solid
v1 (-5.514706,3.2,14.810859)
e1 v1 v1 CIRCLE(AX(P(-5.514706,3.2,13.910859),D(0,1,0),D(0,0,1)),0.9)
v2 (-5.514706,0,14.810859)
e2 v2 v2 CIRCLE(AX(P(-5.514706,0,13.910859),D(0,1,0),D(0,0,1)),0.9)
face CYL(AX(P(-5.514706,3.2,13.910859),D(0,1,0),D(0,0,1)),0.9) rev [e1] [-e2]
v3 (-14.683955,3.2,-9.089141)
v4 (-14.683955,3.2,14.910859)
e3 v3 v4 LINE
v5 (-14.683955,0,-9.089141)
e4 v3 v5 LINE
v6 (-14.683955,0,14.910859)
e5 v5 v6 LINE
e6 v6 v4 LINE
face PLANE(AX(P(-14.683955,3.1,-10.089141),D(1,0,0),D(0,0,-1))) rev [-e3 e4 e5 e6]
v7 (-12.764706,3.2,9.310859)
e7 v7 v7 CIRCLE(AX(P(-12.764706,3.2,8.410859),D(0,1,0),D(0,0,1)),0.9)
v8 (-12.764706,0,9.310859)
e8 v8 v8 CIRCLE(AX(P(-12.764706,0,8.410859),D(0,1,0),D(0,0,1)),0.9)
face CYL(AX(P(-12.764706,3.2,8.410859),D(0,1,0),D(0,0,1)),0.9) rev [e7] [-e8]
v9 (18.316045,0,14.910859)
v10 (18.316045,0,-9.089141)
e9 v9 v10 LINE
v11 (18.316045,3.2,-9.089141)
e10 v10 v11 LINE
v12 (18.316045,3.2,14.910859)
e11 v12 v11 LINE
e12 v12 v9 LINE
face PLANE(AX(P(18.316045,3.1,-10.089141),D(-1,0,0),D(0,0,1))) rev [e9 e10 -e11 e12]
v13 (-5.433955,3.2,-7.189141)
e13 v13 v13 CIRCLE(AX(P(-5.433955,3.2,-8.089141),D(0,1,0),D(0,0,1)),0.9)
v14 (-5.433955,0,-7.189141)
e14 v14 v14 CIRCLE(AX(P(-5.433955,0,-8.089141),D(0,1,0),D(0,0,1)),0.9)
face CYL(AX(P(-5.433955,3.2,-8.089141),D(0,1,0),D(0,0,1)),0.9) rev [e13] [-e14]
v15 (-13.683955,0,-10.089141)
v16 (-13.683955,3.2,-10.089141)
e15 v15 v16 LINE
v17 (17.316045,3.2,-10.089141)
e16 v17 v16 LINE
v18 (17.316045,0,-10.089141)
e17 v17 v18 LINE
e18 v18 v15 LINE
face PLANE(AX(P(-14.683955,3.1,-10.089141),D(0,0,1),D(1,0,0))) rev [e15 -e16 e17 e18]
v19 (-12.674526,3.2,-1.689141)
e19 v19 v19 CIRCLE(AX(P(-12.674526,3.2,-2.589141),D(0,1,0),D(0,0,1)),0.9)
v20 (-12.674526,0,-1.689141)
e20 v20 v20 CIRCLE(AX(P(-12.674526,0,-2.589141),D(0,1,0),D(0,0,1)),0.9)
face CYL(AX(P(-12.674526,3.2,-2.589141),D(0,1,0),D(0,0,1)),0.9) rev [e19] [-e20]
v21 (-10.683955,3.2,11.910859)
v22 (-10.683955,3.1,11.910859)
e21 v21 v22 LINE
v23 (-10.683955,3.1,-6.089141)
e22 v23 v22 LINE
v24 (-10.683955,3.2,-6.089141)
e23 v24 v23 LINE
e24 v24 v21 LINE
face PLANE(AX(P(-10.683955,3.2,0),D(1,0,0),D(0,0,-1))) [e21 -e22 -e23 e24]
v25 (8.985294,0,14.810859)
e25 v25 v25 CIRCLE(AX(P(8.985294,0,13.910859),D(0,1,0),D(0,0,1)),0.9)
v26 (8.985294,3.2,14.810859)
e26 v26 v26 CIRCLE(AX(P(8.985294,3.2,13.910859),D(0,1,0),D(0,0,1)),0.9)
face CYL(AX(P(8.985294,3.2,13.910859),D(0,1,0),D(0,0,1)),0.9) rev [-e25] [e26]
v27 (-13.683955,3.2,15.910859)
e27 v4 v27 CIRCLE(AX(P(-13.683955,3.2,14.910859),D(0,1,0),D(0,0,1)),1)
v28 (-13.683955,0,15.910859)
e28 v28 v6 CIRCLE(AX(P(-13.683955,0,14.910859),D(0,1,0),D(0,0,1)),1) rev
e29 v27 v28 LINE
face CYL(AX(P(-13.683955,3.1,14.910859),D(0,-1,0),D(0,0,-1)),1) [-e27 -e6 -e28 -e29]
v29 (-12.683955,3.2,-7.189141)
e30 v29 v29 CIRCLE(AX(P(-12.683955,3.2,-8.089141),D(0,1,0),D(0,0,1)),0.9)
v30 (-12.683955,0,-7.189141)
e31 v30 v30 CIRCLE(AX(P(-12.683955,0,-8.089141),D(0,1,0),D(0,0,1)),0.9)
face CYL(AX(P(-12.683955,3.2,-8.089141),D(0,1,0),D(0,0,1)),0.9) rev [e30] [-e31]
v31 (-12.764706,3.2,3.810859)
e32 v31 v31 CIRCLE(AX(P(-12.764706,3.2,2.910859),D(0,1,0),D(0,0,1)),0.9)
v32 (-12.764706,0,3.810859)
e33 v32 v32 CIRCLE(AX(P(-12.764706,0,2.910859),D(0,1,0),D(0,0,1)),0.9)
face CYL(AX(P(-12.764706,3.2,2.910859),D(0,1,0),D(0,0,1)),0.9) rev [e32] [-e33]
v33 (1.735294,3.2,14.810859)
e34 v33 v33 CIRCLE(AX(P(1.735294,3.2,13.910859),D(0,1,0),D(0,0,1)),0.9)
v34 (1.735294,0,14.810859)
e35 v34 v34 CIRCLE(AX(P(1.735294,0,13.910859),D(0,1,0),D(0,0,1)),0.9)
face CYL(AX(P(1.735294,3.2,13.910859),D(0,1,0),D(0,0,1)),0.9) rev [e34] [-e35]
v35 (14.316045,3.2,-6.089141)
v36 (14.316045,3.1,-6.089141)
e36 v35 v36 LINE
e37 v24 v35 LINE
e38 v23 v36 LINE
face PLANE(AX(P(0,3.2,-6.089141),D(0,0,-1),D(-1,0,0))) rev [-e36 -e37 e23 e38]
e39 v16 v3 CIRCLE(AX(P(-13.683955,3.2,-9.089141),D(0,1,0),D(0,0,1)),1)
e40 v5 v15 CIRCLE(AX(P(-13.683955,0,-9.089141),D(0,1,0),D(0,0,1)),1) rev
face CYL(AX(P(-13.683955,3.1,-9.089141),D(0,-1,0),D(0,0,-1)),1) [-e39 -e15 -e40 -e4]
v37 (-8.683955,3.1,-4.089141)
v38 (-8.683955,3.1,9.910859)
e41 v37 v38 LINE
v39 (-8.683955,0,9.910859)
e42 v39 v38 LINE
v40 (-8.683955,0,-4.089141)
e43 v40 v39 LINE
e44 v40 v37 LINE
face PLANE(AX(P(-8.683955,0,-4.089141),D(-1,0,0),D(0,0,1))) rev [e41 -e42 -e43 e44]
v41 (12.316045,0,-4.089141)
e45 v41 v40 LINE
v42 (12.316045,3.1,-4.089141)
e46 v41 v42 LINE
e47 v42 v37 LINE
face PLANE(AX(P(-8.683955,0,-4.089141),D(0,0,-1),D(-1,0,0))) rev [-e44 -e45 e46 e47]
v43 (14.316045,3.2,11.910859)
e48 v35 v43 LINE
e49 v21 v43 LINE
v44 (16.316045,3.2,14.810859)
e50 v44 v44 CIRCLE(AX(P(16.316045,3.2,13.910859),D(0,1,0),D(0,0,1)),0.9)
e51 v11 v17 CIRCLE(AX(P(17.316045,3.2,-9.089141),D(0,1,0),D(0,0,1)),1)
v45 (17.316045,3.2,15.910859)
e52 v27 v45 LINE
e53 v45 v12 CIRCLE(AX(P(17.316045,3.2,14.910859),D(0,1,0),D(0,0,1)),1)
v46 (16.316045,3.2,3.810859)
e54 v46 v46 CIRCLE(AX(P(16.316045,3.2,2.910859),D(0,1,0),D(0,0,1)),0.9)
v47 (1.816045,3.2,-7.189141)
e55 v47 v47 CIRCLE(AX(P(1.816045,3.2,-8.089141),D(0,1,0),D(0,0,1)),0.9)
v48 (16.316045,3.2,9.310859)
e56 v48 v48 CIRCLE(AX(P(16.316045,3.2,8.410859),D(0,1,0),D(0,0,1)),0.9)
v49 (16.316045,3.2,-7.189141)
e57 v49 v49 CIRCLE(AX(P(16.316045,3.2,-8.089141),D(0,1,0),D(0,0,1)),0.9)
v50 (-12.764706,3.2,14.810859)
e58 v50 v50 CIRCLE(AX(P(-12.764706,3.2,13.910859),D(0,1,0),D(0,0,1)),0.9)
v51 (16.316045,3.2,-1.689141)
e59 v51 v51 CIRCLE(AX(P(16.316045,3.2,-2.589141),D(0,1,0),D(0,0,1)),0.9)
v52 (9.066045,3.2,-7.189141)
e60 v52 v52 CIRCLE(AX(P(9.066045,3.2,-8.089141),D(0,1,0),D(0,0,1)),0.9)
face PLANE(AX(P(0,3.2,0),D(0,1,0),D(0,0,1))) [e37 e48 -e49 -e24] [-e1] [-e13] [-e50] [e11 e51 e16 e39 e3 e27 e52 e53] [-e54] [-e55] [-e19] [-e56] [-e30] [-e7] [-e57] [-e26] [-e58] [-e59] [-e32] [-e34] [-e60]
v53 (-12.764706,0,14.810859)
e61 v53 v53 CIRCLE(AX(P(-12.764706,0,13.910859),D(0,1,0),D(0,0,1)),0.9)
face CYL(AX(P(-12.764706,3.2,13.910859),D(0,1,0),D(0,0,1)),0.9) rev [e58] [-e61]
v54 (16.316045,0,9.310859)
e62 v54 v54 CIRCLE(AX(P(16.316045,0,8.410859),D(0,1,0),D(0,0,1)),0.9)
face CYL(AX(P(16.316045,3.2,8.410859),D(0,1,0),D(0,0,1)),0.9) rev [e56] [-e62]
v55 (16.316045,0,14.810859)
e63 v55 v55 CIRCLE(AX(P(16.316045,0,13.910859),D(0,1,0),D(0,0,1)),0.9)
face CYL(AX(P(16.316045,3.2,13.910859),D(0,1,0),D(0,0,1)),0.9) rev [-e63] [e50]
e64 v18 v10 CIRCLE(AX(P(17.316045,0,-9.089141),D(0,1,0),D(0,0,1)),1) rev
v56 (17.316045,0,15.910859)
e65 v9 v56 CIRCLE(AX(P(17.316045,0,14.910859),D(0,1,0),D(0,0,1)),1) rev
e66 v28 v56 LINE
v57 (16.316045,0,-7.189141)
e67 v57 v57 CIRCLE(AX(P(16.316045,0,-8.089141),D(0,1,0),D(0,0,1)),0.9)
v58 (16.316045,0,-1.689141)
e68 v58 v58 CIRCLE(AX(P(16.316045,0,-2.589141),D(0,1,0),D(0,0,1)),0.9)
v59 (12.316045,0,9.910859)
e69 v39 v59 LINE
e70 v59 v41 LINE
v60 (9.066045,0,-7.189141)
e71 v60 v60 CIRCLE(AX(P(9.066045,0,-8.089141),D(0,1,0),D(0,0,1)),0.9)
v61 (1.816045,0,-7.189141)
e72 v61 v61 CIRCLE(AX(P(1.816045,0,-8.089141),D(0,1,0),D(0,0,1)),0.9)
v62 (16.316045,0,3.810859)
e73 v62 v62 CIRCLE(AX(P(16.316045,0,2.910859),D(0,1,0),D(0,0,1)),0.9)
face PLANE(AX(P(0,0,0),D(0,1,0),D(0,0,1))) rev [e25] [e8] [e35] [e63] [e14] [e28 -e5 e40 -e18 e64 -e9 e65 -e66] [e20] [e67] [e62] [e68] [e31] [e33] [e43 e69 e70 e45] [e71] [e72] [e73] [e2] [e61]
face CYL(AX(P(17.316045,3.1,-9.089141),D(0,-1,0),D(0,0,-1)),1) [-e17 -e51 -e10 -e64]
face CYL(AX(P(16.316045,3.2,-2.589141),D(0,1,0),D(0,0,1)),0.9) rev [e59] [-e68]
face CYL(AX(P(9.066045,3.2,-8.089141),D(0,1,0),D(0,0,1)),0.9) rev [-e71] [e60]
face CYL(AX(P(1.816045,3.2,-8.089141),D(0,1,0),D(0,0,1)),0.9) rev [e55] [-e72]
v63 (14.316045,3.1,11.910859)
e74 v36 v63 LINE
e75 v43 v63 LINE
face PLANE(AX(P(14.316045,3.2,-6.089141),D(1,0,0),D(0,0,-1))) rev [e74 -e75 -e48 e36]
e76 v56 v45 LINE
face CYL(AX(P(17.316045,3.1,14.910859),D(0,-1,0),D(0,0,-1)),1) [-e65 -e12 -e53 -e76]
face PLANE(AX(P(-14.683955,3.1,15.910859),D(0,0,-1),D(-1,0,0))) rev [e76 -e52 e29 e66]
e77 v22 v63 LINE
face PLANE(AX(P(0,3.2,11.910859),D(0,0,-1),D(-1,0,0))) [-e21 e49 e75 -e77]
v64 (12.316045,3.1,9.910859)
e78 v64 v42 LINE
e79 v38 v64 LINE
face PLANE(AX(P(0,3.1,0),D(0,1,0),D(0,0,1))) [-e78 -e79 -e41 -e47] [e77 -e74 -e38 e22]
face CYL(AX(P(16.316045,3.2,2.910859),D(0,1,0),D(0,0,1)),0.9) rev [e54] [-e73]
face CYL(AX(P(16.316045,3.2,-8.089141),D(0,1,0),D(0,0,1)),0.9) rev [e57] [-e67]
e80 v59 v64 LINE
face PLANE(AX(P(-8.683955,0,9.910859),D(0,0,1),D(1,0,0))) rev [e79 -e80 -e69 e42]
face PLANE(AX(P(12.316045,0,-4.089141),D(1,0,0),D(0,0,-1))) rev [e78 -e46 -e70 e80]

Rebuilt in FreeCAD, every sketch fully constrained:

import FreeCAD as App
import Part
import Sketcher
from FreeCAD import Vector


def edges_at(feature, points):
    """Names of the edges that pass closest to the given points."""
    edges = feature.Shape.Edges
    near = lambda p: min(range(len(edges)), key=lambda i: edges[i].distToShape(Part.Vertex(*p))[0])
    return sorted({f"Edge{near(p) + 1}" for p in points})


def add_polygon(sketch, points):
    """Adds a closed chain of lines whose ends are joined by coincident constraints."""
    first, n = sketch.GeometryCount, len(points)
    for a, b in zip(points, points[1:] + points[:1]):
        sketch.addGeometry(Part.LineSegment(App.Vector(*a, 0), App.Vector(*b, 0)), False)
    for i in range(n):
        sketch.addConstraint(Sketcher.Constraint("Coincident", first + i, 2, first + (i + 1) % n, 1))

doc = App.newDocument("Part")
body = doc.addObject("PartDesign::Body", "Body")

# Sketch on XZ plane
sketch1 = body.newObject("Sketcher::SketchObject", "Sketch")
sketch1.AttachmentSupport = (doc.getObject("XZ_Plane"), [""])
sketch1.MapMode = "FlatFace"
add_polygon(sketch1, [(-15, -10), (-15, 16), (18, 16), (18, -10)])  # lines 0-3
sketch1.addConstraint([
    Sketcher.Constraint("Vertical", 0),
    Sketcher.Constraint("Horizontal", 1),
    Sketcher.Constraint("Vertical", 2),
    Sketcher.Constraint("Horizontal", 3),
    Sketcher.Constraint("DistanceX", 1, 1, 1, 2, 33.0),
    Sketcher.Constraint("DistanceY", 0, 1, 0, 2, 26.0),
    Sketcher.Constraint("DistanceY", -1, 1, 0, 2, 15.910859),
    Sketcher.Constraint("DistanceX", 0, 2, -1, 1, 14.683955),
])
pad1 = body.newObject("PartDesign::Pad", "Pad")
pad1.Profile = sketch1
pad1.Length = 3.1
pad1.Reversed = True

# Sketch on XZ plane
sketch2 = body.newObject("Sketcher::SketchObject", "Sketch001")
sketch2.AttachmentSupport = (doc.getObject("XZ_Plane"), [""])
sketch2.MapMode = "FlatFace"
sketch2.AttachmentOffset = App.Placement(Vector(0, 0, -3.1), App.Rotation())
add_polygon(sketch2, [(-15, -10), (-15, 16), (18, 16), (18, -10)])  # lines 0-3
add_polygon(sketch2, [(14, 12), (-11, 12), (-11, -6), (14, -6)])  # lines 4-7
sketch2.addConstraint([
    Sketcher.Constraint("Vertical", 0),
    Sketcher.Constraint("Horizontal", 1),
    Sketcher.Constraint("Vertical", 2),
    Sketcher.Constraint("Horizontal", 3),
    Sketcher.Constraint("Horizontal", 4),
    Sketcher.Constraint("Vertical", 5),
    Sketcher.Constraint("Horizontal", 6),
    Sketcher.Constraint("Vertical", 7),
    Sketcher.Constraint("DistanceX", 1, 1, 1, 2, 33.0),
    Sketcher.Constraint("DistanceX", 4, 2, 4, 1, 25.0),
    Sketcher.Constraint("DistanceY", 0, 1, 0, 2, 26.0),
    Sketcher.Constraint("DistanceY", 5, 2, 5, 1, 18.0),
    Sketcher.Constraint("DistanceX", 0, 2, 4, 2, 4.0),
    Sketcher.Constraint("DistanceY", 4, 2, 0, 2, 4.0),
    Sketcher.Constraint("DistanceY", -1, 1, 0, 2, 15.910859),
    Sketcher.Constraint("DistanceX", 0, 2, -1, 1, 14.683955),
])
pad2 = body.newObject("PartDesign::Pad", "Pad001")
pad2.Profile = sketch2
pad2.Length = 0.1
pad2.Reversed = True

# Sketch on XZ plane
sketch3 = body.newObject("Sketcher::SketchObject", "Sketch002")
sketch3.AttachmentSupport = (doc.getObject("XZ_Plane"), [""])
sketch3.MapMode = "FlatFace"
sketch3.AttachmentOffset = App.Placement(Vector(0, 0, -3.2), App.Rotation())
sketch3.addGeometry([
    Part.Circle(Vector(-12.7, -8.1, 0), Vector(0, 0, 1), 0.9),  # 0
    Part.Circle(Vector(-12.7, -2.6, 0), Vector(0, 0, 1), 0.9),  # 1
    Part.Circle(Vector(-12.8, 2.9, 0), Vector(0, 0, 1), 0.9),  # 2
    Part.Circle(Vector(-12.8, 8.4, 0), Vector(0, 0, 1), 0.9),  # 3
    Part.Circle(Vector(-12.8, 13.9, 0), Vector(0, 0, 1), 0.9),  # 4
    Part.Circle(Vector(-5.4, -8.1, 0), Vector(0, 0, 1), 0.9),  # 5
    Part.Circle(Vector(1.8, -8.1, 0), Vector(0, 0, 1), 0.9),  # 6
    Part.Circle(Vector(1.7, 13.9, 0), Vector(0, 0, 1), 0.9),  # 7
    Part.Circle(Vector(-5.5, 13.9, 0), Vector(0, 0, 1), 0.9),  # 8
    Part.Circle(Vector(9.1, -8.1, 0), Vector(0, 0, 1), 0.9),  # 9
    Part.Circle(Vector(16.3, -8.1, 0), Vector(0, 0, 1), 0.9),  # 10
    Part.Circle(Vector(16.3, -2.6, 0), Vector(0, 0, 1), 0.9),  # 11
    Part.Circle(Vector(16.3, 2.9, 0), Vector(0, 0, 1), 0.9),  # 12
    Part.Circle(Vector(16.3, 8.4, 0), Vector(0, 0, 1), 0.9),  # 13
    Part.Circle(Vector(16.3, 13.9, 0), Vector(0, 0, 1), 0.9),  # 14
    Part.Circle(Vector(9, 13.9, 0), Vector(0, 0, 1), 0.9),  # 15
], False)
sketch3.addConstraint([
    Sketcher.Constraint("Equal", 0, 1),
    Sketcher.Constraint("Equal", 1, 2),
    Sketcher.Constraint("Equal", 2, 3),
    Sketcher.Constraint("Equal", 3, 4),
    Sketcher.Constraint("Equal", 4, 5),
    Sketcher.Constraint("Equal", 5, 6),
    Sketcher.Constraint("Equal", 6, 7),
    Sketcher.Constraint("Equal", 7, 8),
    Sketcher.Constraint("Equal", 8, 9),
    Sketcher.Constraint("Equal", 9, 10),
    Sketcher.Constraint("Equal", 10, 11),
    Sketcher.Constraint("Equal", 11, 12),
    Sketcher.Constraint("Equal", 12, 13),
    Sketcher.Constraint("Equal", 13, 14),
    Sketcher.Constraint("Equal", 14, 15),
    Sketcher.Constraint("Horizontal", 0, 3, 5, 3),
    Sketcher.Constraint("Horizontal", 5, 3, 6, 3),
    Sketcher.Constraint("Horizontal", 4, 3, 7, 3),
    Sketcher.Constraint("Horizontal", 7, 3, 8, 3),
    Sketcher.Constraint("Horizontal", 6, 3, 9, 3),
    Sketcher.Constraint("Horizontal", 9, 3, 10, 3),
    Sketcher.Constraint("Horizontal", 1, 3, 11, 3),
    Sketcher.Constraint("Horizontal", 2, 3, 12, 3),
    Sketcher.Constraint("Horizontal", 3, 3, 13, 3),
    Sketcher.Constraint("Horizontal", 8, 3, 14, 3),
    Sketcher.Constraint("Horizontal", 14, 3, 15, 3),
    Sketcher.Constraint("Vertical", 2, 3, 3, 3),
    Sketcher.Constraint("Vertical", 3, 3, 4, 3),
    Sketcher.Constraint("Vertical", 10, 3, 11, 3),
    Sketcher.Constraint("Vertical", 11, 3, 12, 3),
    Sketcher.Constraint("Vertical", 12, 3, 13, 3),
    Sketcher.Constraint("Vertical", 13, 3, 14, 3),
    Sketcher.Constraint("Diameter", 0, 1.8),
    Sketcher.Constraint("DistanceY", 0, 3, 2, 3, 11.0),
    Sketcher.Constraint("DistanceY", 1, 3, 3, 3, 11.0),
    Sketcher.Constraint("DistanceY", 2, 3, 4, 3, 11.0),
    Sketcher.Constraint("DistanceX", 0, 3, 10, 3, 29.0),
    Sketcher.Constraint("DistanceY", 0, 3, 1, 3, 5.5),
    Sketcher.Constraint("DistanceX", 0, 3, 6, 3, 14.5),
    Sketcher.Constraint("DistanceX", 4, 3, 7, 3, 14.5),
    Sketcher.Constraint("DistanceX", 5, 3, 9, 3, 14.5),
    Sketcher.Constraint("DistanceX", 8, 3, 15, 3, 14.5),
    Sketcher.Constraint("DistanceX", 0, 3, 5, 3, 7.25),
    Sketcher.Constraint("DistanceX", 8, 3, 7, 3, 7.25),
    Sketcher.Constraint("DistanceY", 0, 3, -1, 1, 8.089141),
    Sketcher.Constraint("DistanceX", 0, 3, 1, 3, 0.009429),
    Sketcher.Constraint("DistanceX", 2, 3, 1, 3, 0.09018),
    Sketcher.Constraint("DistanceX", 0, 3, -1, 1, 12.683955),
])
doc.recompute()
hole = body.newObject("PartDesign::Hole", "Hole")
hole.Profile = sketch3
hole.ThreadType = "None"
hole.Diameter = 1.8
hole.DepthType = "ThroughAll"
hole.Reversed = True
doc.recompute()

fillet = body.newObject("PartDesign::Fillet", "Fillet")
fillet.Base = (hole, edges_at(hole, [
    (-14.684, 1.6, -10.089),
    (18.316, 1.6, -10.089),
    (18.316, 1.6, 15.911),
    (-14.684, 1.6, 15.911),
]))
fillet.Radius = 1

# Sketch on XZ plane
sketch4 = body.newObject("Sketcher::SketchObject", "Sketch003")
sketch4.AttachmentSupport = (doc.getObject("XZ_Plane"), [""])
sketch4.MapMode = "FlatFace"
sketch4.AttachmentOffset = App.Placement(Vector(0, 0, -3.1), App.Rotation())
add_polygon(sketch4, [(-9, -4), (-9, 10), (12, 10), (12, -4)])  # lines 0-3
sketch4.addConstraint([
    Sketcher.Constraint("Vertical", 0),
    Sketcher.Constraint("Horizontal", 1),
    Sketcher.Constraint("Vertical", 2),
    Sketcher.Constraint("Horizontal", 3),
    Sketcher.Constraint("DistanceX", 1, 1, 1, 2, 21.0),
    Sketcher.Constraint("DistanceY", 0, 1, 0, 2, 14.0),
    Sketcher.Constraint("DistanceY", -1, 1, 0, 2, 9.910859),
    Sketcher.Constraint("DistanceX", 0, 2, -1, 1, 8.683955),
])
pocket1 = body.newObject("PartDesign::Pocket", "Pocket")
pocket1.Profile = sketch4
pocket1.Type = "ThroughAll"
pocket1.Reversed = True

doc.recompute()
